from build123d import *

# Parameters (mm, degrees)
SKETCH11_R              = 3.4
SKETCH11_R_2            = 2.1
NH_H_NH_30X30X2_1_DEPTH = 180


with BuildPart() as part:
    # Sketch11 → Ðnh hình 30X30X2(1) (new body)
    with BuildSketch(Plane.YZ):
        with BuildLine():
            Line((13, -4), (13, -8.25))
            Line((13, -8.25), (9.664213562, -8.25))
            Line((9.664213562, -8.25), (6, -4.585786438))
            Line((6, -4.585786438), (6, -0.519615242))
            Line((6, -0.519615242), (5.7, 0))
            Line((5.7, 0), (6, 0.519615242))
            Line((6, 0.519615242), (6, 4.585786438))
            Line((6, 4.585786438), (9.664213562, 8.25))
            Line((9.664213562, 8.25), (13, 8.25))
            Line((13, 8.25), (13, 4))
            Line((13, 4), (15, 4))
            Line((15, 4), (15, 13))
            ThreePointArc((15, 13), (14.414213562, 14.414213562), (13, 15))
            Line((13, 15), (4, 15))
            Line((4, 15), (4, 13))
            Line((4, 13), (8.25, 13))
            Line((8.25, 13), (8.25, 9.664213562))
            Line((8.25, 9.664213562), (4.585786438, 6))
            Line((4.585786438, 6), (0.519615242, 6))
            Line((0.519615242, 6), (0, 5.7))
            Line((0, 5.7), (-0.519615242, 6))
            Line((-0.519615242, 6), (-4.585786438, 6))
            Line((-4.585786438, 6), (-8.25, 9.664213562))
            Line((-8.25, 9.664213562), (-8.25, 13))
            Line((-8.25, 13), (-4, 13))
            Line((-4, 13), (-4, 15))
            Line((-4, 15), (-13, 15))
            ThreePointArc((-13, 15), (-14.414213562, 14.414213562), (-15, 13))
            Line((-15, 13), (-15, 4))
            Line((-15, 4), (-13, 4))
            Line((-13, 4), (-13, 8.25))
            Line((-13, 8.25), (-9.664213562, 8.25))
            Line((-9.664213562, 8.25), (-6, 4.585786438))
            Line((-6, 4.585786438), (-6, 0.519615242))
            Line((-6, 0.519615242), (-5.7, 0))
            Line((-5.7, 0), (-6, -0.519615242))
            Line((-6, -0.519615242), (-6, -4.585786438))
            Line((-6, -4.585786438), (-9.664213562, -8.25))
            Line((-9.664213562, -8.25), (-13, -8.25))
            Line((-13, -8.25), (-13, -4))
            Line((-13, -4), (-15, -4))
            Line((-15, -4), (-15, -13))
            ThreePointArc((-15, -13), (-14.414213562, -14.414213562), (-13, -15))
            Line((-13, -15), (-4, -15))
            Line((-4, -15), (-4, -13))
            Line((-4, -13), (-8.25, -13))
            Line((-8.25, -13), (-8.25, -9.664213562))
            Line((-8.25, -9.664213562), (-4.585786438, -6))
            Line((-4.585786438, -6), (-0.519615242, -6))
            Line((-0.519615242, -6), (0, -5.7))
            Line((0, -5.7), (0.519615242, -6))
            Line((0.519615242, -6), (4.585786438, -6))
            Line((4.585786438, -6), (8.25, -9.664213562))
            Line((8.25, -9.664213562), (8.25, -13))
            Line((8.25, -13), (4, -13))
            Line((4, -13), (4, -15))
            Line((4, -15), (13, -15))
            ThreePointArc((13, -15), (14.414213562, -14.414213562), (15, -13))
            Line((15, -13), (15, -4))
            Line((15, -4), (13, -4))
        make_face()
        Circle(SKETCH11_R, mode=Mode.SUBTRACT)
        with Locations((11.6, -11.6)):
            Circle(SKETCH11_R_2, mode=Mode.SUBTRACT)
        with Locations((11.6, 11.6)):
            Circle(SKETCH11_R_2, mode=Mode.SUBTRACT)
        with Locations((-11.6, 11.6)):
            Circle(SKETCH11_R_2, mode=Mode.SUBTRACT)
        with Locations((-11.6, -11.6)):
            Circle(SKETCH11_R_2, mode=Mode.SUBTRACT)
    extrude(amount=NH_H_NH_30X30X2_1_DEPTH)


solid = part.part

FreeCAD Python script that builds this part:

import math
import FreeCAD as App
import Part
import Sketcher
Q = App.Units.Quantity

doc = App.newDocument("Part")
body = doc.addObject("PartDesign::Body", "Body")

# Sketch on YZ plane
sketch1 = body.newObject("Sketcher::SketchObject", "Sketch")
sketch1.AttachmentSupport = (doc.getObject("YZ_Plane"), [""])
sketch1.MapMode = "FlatFace"
sketch1.addGeometry(Part.LineSegment(App.Vector(13, -4, 0), App.Vector(13, -8.2, 0)), False)
sketch1.addGeometry(Part.LineSegment(App.Vector(13, -8.2, 0), App.Vector(9.7, -8.2, 0)), False)
sketch1.addGeometry(Part.LineSegment(App.Vector(9.7, -8.2, 0), App.Vector(6, -4.6, 0)), False)
sketch1.addGeometry(Part.LineSegment(App.Vector(6, -4.6, 0), App.Vector(6, -0.5, 0)), False)
sketch1.addGeometry(Part.LineSegment(App.Vector(6, -0.5, 0), App.Vector(5.7, 0, 0)), False)
sketch1.addGeometry(Part.LineSegment(App.Vector(5.7, 0, 0), App.Vector(6, 0.5, 0)), False)
sketch1.addGeometry(Part.LineSegment(App.Vector(6, 0.5, 0), App.Vector(6, 4.6, 0)), False)
sketch1.addGeometry(Part.LineSegment(App.Vector(6, 4.6, 0), App.Vector(9.7, 8.2, 0)), False)
sketch1.addGeometry(Part.LineSegment(App.Vector(9.7, 8.2, 0), App.Vector(13, 8.2, 0)), False)
sketch1.addGeometry(Part.LineSegment(App.Vector(13, 8.2, 0), App.Vector(13, 4, 0)), False)
sketch1.addGeometry(Part.LineSegment(App.Vector(13, 4, 0), App.Vector(15, 4, 0)), False)
sketch1.addGeometry(Part.LineSegment(App.Vector(15, 4, 0), App.Vector(15, 13, 0)), False)
sketch1.addGeometry(Part.ArcOfCircle(Part.Circle(App.Vector(13, 13, 0), App.Vector(0, 0, 1), 2), math.radians(0), math.radians(90)), False)
sketch1.addGeometry(Part.LineSegment(App.Vector(13, 15, 0), App.Vector(4, 15, 0)), False)
sketch1.addGeometry(Part.LineSegment(App.Vector(4, 15, 0), App.Vector(4, 13, 0)), False)
sketch1.addGeometry(Part.LineSegment(App.Vector(4, 13, 0), App.Vector(8.2, 13, 0)), False)
sketch1.addGeometry(Part.LineSegment(App.Vector(8.2, 13, 0), App.Vector(8.2, 9.7, 0)), False)
sketch1.addGeometry(Part.LineSegment(App.Vector(8.2, 9.7, 0), App.Vector(4.6, 6, 0)), False)
sketch1.addGeometry(Part.LineSegment(App.Vector(4.6, 6, 0), App.Vector(0.5, 6, 0)), False)
sketch1.addGeometry(Part.LineSegment(App.Vector(0.5, 6, 0), App.Vector(0, 5.7, 0)), False)
sketch1.addGeometry(Part.LineSegment(App.Vector(0, 5.7, 0), App.Vector(-0.5, 6, 0)), False)
sketch1.addGeometry(Part.LineSegment(App.Vector(-0.5, 6, 0), App.Vector(-4.6, 6, 0)), False)
sketch1.addGeometry(Part.LineSegment(App.Vector(-4.6, 6, 0), App.Vector(-8.2, 9.7, 0)), False)
sketch1.addGeometry(Part.LineSegment(App.Vector(-8.2, 9.7, 0), App.Vector(-8.2, 13, 0)), False)
sketch1.addGeometry(Part.LineSegment(App.Vector(-8.2, 13, 0), App.Vector(-4, 13, 0)), False)
sketch1.addGeometry(Part.LineSegment(App.Vector(-4, 13, 0), App.Vector(-4, 15, 0)), False)
sketch1.addGeometry(Part.LineSegment(App.Vector(-4, 15, 0), App.Vector(-13, 15, 0)), False)
sketch1.addGeometry(Part.ArcOfCircle(Part.Circle(App.Vector(-13, 13, 0), App.Vector(0, 0, 1), 2), math.radians(90), math.radians(180)), False)
sketch1.addGeometry(Part.LineSegment(App.Vector(-15, 13, 0), App.Vector(-15, 4, 0)), False)
sketch1.addGeometry(Part.LineSegment(App.Vector(-15, 4, 0), App.Vector(-13, 4, 0)), False)
sketch1.addGeometry(Part.LineSegment(App.Vector(-13, 4, 0), App.Vector(-13, 8.2, 0)), False)
sketch1.addGeometry(Part.LineSegment(App.Vector(-13, 8.2, 0), App.Vector(-9.7, 8.2, 0)), False)
sketch1.addGeometry(Part.LineSegment(App.Vector(-9.7, 8.2, 0), App.Vector(-6, 4.6, 0)), False)
sketch1.addGeometry(Part.LineSegment(App.Vector(-6, 4.6, 0), App.Vector(-6, 0.5, 0)), False)
sketch1.addGeometry(Part.LineSegment(App.Vector(-6, 0.5, 0), App.Vector(-5.7, 0, 0)), False)
sketch1.addGeometry(Part.LineSegment(App.Vector(-5.7, 0, 0), App.Vector(-6, -0.5, 0)), False)
sketch1.addGeometry(Part.LineSegment(App.Vector(-6, -0.5, 0), App.Vector(-6, -4.6, 0)), False)
sketch1.addGeometry(Part.LineSegment(App.Vector(-6, -4.6, 0), App.Vector(-9.7, -8.2, 0)), False)
sketch1.addGeometry(Part.LineSegment(App.Vector(-9.7, -8.2, 0), App.Vector(-13, -8.2, 0)), False)
sketch1.addGeometry(Part.LineSegment(App.Vector(-13, -8.2, 0), App.Vector(-13, -4, 0)), False)
sketch1.addGeometry(Part.LineSegment(App.Vector(-13, -4, 0), App.Vector(-15, -4, 0)), False)
sketch1.addGeometry(Part.LineSegment(App.Vector(-15, -4, 0), App.Vector(-15, -13, 0)), False)
sketch1.addGeometry(Part.ArcOfCircle(Part.Circle(App.Vector(-13, -13, 0), App.Vector(0, 0, 1), 2), math.radians(-180), math.radians(-90)), False)
sketch1.addGeometry(Part.LineSegment(App.Vector(-13, -15, 0), App.Vector(-4, -15, 0)), False)
sketch1.addGeometry(Part.LineSegment(App.Vector(-4, -15, 0), App.Vector(-4, -13, 0)), False)
sketch1.addGeometry(Part.LineSegment(App.Vector(-4, -13, 0), App.Vector(-8.2, -13, 0)), False)
sketch1.addGeometry(Part.LineSegment(App.Vector(-8.2, -13, 0), App.Vector(-8.2, -9.7, 0)), False)
sketch1.addGeometry(Part.LineSegment(App.Vector(-8.2, -9.7, 0), App.Vector(-4.6, -6, 0)), False)
sketch1.addGeometry(Part.LineSegment(App.Vector(-4.6, -6, 0), App.Vector(-0.5, -6, 0)), False)
sketch1.addGeometry(Part.LineSegment(App.Vector(-0.5, -6, 0), App.Vector(0, -5.7, 0)), False)
sketch1.addGeometry(Part.LineSegment(App.Vector(0, -5.7, 0), App.Vector(0.5, -6, 0)), False)
sketch1.addGeometry(Part.LineSegment(App.Vector(0.5, -6, 0), App.Vector(4.6, -6, 0)), False)
sketch1.addGeometry(Part.LineSegment(App.Vector(4.6, -6, 0), App.Vector(8.2, -9.7, 0)), False)
sketch1.addGeometry(Part.LineSegment(App.Vector(8.2, -9.7, 0), App.Vector(8.2, -13, 0)), False)
sketch1.addGeometry(Part.LineSegment(App.Vector(8.2, -13, 0), App.Vector(4, -13, 0)), False)
sketch1.addGeometry(Part.LineSegment(App.Vector(4, -13, 0), App.Vector(4, -15, 0)), False)
sketch1.addGeometry(Part.LineSegment(App.Vector(4, -15, 0), App.Vector(13, -15, 0)), False)
sketch1.addGeometry(Part.ArcOfCircle(Part.Circle(App.Vector(13, -13, 0), App.Vector(0, 0, 1), 2), math.radians(-90), math.radians(0)), False)
sketch1.addGeometry(Part.LineSegment(App.Vector(15, -13, 0), App.Vector(15, -4, 0)), False)
sketch1.addGeometry(Part.LineSegment(App.Vector(15, -4, 0), App.Vector(13, -4, 0)), False)
sketch1.addGeometry(Part.Circle(App.Vector(-11.6, -11.6, 0), App.Vector(0, 0, 1), 2.1), False)
sketch1.addGeometry(Part.Circle(App.Vector(11.6, -11.6, 0), App.Vector(0, 0, 1), 2.1), False)
sketch1.addGeometry(Part.Circle(App.Vector(-11.6, 11.6, 0), App.Vector(0, 0, 1), 2.1), False)
sketch1.addGeometry(Part.Circle(App.Vector(0, 0, 0), App.Vector(0, 0, 1), 3.4), False)
sketch1.addGeometry(Part.Circle(App.Vector(11.6, 11.6, 0), App.Vector(0, 0, 1), 2.1), False)
sketch1.addConstraint(Sketcher.Constraint("Coincident", 0, 2, 1, 1))
sketch1.addConstraint(Sketcher.Constraint("Coincident", 1, 2, 2, 1))
sketch1.addConstraint(Sketcher.Constraint("Coincident", 2, 2, 3, 1))
sketch1.addConstraint(Sketcher.Constraint("Coincident", 3, 2, 4, 1))
sketch1.addConstraint(Sketcher.Constraint("Coincident", 4, 2, 5, 1))
sketch1.addConstraint(Sketcher.Constraint("Coincident", 5, 2, 6, 1))
sketch1.addConstraint(Sketcher.Constraint("Coincident", 6, 2, 7, 1))
sketch1.addConstraint(Sketcher.Constraint("Coincident", 7, 2, 8, 1))
sketch1.addConstraint(Sketcher.Constraint("Coincident", 8, 2, 9, 1))
sketch1.addConstraint(Sketcher.Constraint("Coincident", 9, 2, 10, 1))
sketch1.addConstraint(Sketcher.Constraint("Coincident", 10, 2, 11, 1))
sketch1.addConstraint(Sketcher.Constraint("Tangent", 11, 2, 12, 1))
sketch1.addConstraint(Sketcher.Constraint("Tangent", 12, 2, 13, 1))
sketch1.addConstraint(Sketcher.Constraint("Coincident", 13, 2, 14, 1))
sketch1.addConstraint(Sketcher.Constraint("Coincident", 14, 2, 15, 1))
sketch1.addConstraint(Sketcher.Constraint("Coincident", 15, 2, 16, 1))
sketch1.addConstraint(Sketcher.Constraint("Coincident", 16, 2, 17, 1))
sketch1.addConstraint(Sketcher.Constraint("Coincident", 17, 2, 18, 1))
sketch1.addConstraint(Sketcher.Constraint("Coincident", 18, 2, 19, 1))
sketch1.addConstraint(Sketcher.Constraint("Coincident", 19, 2, 20, 1))
sketch1.addConstraint(Sketcher.Constraint("Coincident", 20, 2, 21, 1))
sketch1.addConstraint(Sketcher.Constraint("Coincident", 21, 2, 22, 1))
sketch1.addConstraint(Sketcher.Constraint("Coincident", 22, 2, 23, 1))
sketch1.addConstraint(Sketcher.Constraint("Coincident", 23, 2, 24, 1))
sketch1.addConstraint(Sketcher.Constraint("Coincident", 24, 2, 25, 1))
sketch1.addConstraint(Sketcher.Constraint("Coincident", 25, 2, 26, 1))
sketch1.addConstraint(Sketcher.Constraint("Tangent", 26, 2, 27, 1))
sketch1.addConstraint(Sketcher.Constraint("Tangent", 27, 2, 28, 1))
sketch1.addConstraint(Sketcher.Constraint("Coincident", 28, 2, 29, 1))
sketch1.addConstraint(Sketcher.Constraint("Coincident", 29, 2, 30, 1))
sketch1.addConstraint(Sketcher.Constraint("Coincident", 30, 2, 31, 1))
sketch1.addConstraint(Sketcher.Constraint("Coincident", 31, 2, 32, 1))
sketch1.addConstraint(Sketcher.Constraint("Coincident", 32, 2, 33, 1))
sketch1.addConstraint(Sketcher.Constraint("Coincident", 33, 2, 34, 1))
sketch1.addConstraint(Sketcher.Constraint("Coincident", 34, 2, 35, 1))
sketch1.addConstraint(Sketcher.Constraint("Coincident", 35, 2, 36, 1))
sketch1.addConstraint(Sketcher.Constraint("Coincident", 36, 2, 37, 1))
sketch1.addConstraint(Sketcher.Constraint("Coincident", 37, 2, 38, 1))
sketch1.addConstraint(Sketcher.Constraint("Coincident", 38, 2, 39, 1))
sketch1.addConstraint(Sketcher.Constraint("Coincident", 39, 2, 40, 1))
sketch1.addConstraint(Sketcher.Constraint("Coincident", 40, 2, 41, 1))
sketch1.addConstraint(Sketcher.Constraint("Tangent", 41, 2, 42, 1))
sketch1.addConstraint(Sketcher.Constraint("Tangent", 42, 2, 43, 1))
sketch1.addConstraint(Sketcher.Constraint("Coincident", 43, 2, 44, 1))
sketch1.addConstraint(Sketcher.Constraint("Coincident", 44, 2, 45, 1))
sketch1.addConstraint(Sketcher.Constraint("Coincident", 45, 2, 46, 1))
sketch1.addConstraint(Sketcher.Constraint("Coincident", 46, 2, 47, 1))
sketch1.addConstraint(Sketcher.Constraint("Coincident", 47, 2, 48, 1))
sketch1.addConstraint(Sketcher.Constraint("Coincident", 48, 2, 49, 1))
sketch1.addConstraint(Sketcher.Constraint("Coincident", 49, 2, 50, 1))
sketch1.addConstraint(Sketcher.Constraint("Coincident", 50, 2, 51, 1))
sketch1.addConstraint(Sketcher.Constraint("Coincident", 51, 2, 52, 1))
sketch1.addConstraint(Sketcher.Constraint("Coincident", 52, 2, 53, 1))
sketch1.addConstraint(Sketcher.Constraint("Coincident", 53, 2, 54, 1))
sketch1.addConstraint(Sketcher.Constraint("Coincident", 54, 2, 55, 1))
sketch1.addConstraint(Sketcher.Constraint("Coincident", 55, 2, 56, 1))
sketch1.addConstraint(Sketcher.Constraint("Tangent", 56, 2, 57, 1))
sketch1.addConstraint(Sketcher.Constraint("Tangent", 57, 2, 58, 1))
sketch1.addConstraint(Sketcher.Constraint("Coincident", 58, 2, 59, 1))
sketch1.addConstraint(Sketcher.Constraint("Coincident", 59, 2, 0, 1))
sketch1.addConstraint(Sketcher.Constraint("Vertical", 0))
sketch1.addConstraint(Sketcher.Constraint("Horizontal", 1))
sketch1.addConstraint(Sketcher.Constraint("Vertical", 3))
sketch1.addConstraint(Sketcher.Constraint("Vertical", 6))
sketch1.addConstraint(Sketcher.Constraint("Horizontal", 8))
sketch1.addConstraint(Sketcher.Constraint("Vertical", 9))
sketch1.addConstraint(Sketcher.Constraint("Horizontal", 10))
sketch1.addConstraint(Sketcher.Constraint("Vertical", 11))
sketch1.addConstraint(Sketcher.Constraint("Horizontal", 13))
sketch1.addConstraint(Sketcher.Constraint("Vertical", 14))
sketch1.addConstraint(Sketcher.Constraint("Horizontal", 15))
sketch1.addConstraint(Sketcher.Constraint("Vertical", 16))
sketch1.addConstraint(Sketcher.Constraint("Horizontal", 18))
sketch1.addConstraint(Sketcher.Constraint("Horizontal", 21))
sketch1.addConstraint(Sketcher.Constraint("Vertical", 23))
sketch1.addConstraint(Sketcher.Constraint("Horizontal", 24))
sketch1.addConstraint(Sketcher.Constraint("Vertical", 25))
sketch1.addConstraint(Sketcher.Constraint("Horizontal", 26))
sketch1.addConstraint(Sketcher.Constraint("Vertical", 28))
sketch1.addConstraint(Sketcher.Constraint("Horizontal", 29))
sketch1.addConstraint(Sketcher.Constraint("Vertical", 30))
sketch1.addConstraint(Sketcher.Constraint("Horizontal", 31))
sketch1.addConstraint(Sketcher.Constraint("Vertical", 33))
sketch1.addConstraint(Sketcher.Constraint("Vertical", 36))
sketch1.addConstraint(Sketcher.Constraint("Horizontal", 38))
sketch1.addConstraint(Sketcher.Constraint("Vertical", 39))
sketch1.addConstraint(Sketcher.Constraint("Horizontal", 40))
sketch1.addConstraint(Sketcher.Constraint("Vertical", 41))
sketch1.addConstraint(Sketcher.Constraint("Horizontal", 43))
sketch1.addConstraint(Sketcher.Constraint("Vertical", 44))
sketch1.addConstraint(Sketcher.Constraint("Horizontal", 45))
sketch1.addConstraint(Sketcher.Constraint("Vertical", 46))
sketch1.addConstraint(Sketcher.Constraint("Horizontal", 48))
sketch1.addConstraint(Sketcher.Constraint("Horizontal", 51))
sketch1.addConstraint(Sketcher.Constraint("Vertical", 53))
sketch1.addConstraint(Sketcher.Constraint("Horizontal", 54))
sketch1.addConstraint(Sketcher.Constraint("Vertical", 55))
sketch1.addConstraint(Sketcher.Constraint("Horizontal", 56))
sketch1.addConstraint(Sketcher.Constraint("Vertical", 58))
sketch1.addConstraint(Sketcher.Constraint("Horizontal", 59))
sketch1.addConstraint(Sketcher.Constraint("Coincident", 63, 3, -1, 1))
sketch1.addConstraint(Sketcher.Constraint("Equal", 12, 27))
sketch1.addConstraint(Sketcher.Constraint("Equal", 27, 42))
sketch1.addConstraint(Sketcher.Constraint("Equal", 42, 57))
sketch1.addConstraint(Sketcher.Constraint("Equal", 60, 61))
sketch1.addConstraint(Sketcher.Constraint("Equal", 61, 62))
sketch1.addConstraint(Sketcher.Constraint("Equal", 62, 64))
sketch1.addConstraint(Sketcher.Constraint("Symmetric", 12, 3, 42, 3, -1, 1))
sketch1.addConstraint(Sketcher.Constraint("Symmetric", 27, 3, 57, 3, -1, 1))
sketch1.addConstraint(Sketcher.Constraint("Symmetric", 61, 3, 62, 3, -1, 1))
sketch1.addConstraint(Sketcher.Constraint("Symmetric", 60, 3, 64, 3, -1, 1))
sketch1.addConstraint(Sketcher.Constraint("Symmetric", 0, 2, 30, 2, -1, 1))
sketch1.addConstraint(Sketcher.Constraint("Symmetric", 2, 2, 32, 2, -1, 1))
sketch1.addConstraint(Sketcher.Constraint("Symmetric", 4, 2, 34, 2, -1, 1))
sketch1.addConstraint(Sketcher.Constraint("Symmetric", 5, 2, 35, 2, -1, 1))
sketch1.addConstraint(Sketcher.Constraint("Symmetric", 7, 2, 37, 2, -1, 1))
sketch1.addConstraint(Sketcher.Constraint("Symmetric", 9, 2, 39, 2, -1, 1))
sketch1.addConstraint(Sketcher.Constraint("Symmetric", 14, 2, 44, 2, -1, 1))
sketch1.addConstraint(Sketcher.Constraint("Symmetric", 16, 2, 46, 2, -1, 1))
sketch1.addConstraint(Sketcher.Constraint("Symmetric", 17, 2, 47, 2, -1, 1))
sketch1.addConstraint(Sketcher.Constraint("Symmetric", 19, 2, 49, 2, -1, 1))
sketch1.addConstraint(Sketcher.Constraint("Symmetric", 20, 2, 50, 2, -1, 1))
sketch1.addConstraint(Sketcher.Constraint("Symmetric", 22, 2, 52, 2, -1, 1))
sketch1.addConstraint(Sketcher.Constraint("Symmetric", 24, 2, 54, 2, -1, 1))
sketch1.addConstraint(Sketcher.Constraint("Symmetric", 12, 3, 27, 3, -2))
sketch1.addConstraint(Sketcher.Constraint("Symmetric", 60, 3, 61, 3, -2))
sketch1.addConstraint(Sketcher.Constraint("Symmetric", 18, 2, 20, 2, -2))
sketch1.addConstraint(Sketcher.Constraint("Symmetric", 16, 2, 22, 2, -2))
sketch1.addConstraint(Sketcher.Constraint("Symmetric", 14, 2, 24, 2, -2))
sketch1.addConstraint(Sketcher.Constraint("Symmetric", 9, 2, 29, 2, -2))
sketch1.addConstraint(Sketcher.Constraint("Symmetric", 7, 2, 31, 2, -2))
sketch1.addConstraint(Sketcher.Constraint("Symmetric", 6, 2, 32, 2, -2))
sketch1.addConstraint(Sketcher.Constraint("PointOnObject", 4, 2, -1))
sketch1.addConstraint(Sketcher.Constraint("PointOnObject", 19, 2, -2))
sketch1.addConstraint(Sketcher.Constraint("Perpendicular", 2, 7))
sketch1.addConstraint(Sketcher.Constraint("Parallel", 7, 17))
sketch1.addConstraint(Sketcher.Constraint("Perpendicular", 4, 19))
sketch1.addConstraint(Sketcher.Constraint("Perpendicular", 5, 20))
sketch1.addConstraint(Sketcher.Constraint("Perpendicular", 17, 22))
sketch1.addConstraint(Sketcher.Constraint("Parallel", 22, 32))
sketch1.addConstraint(Sketcher.Constraint("Perpendicular", 19, 34))
sketch1.addConstraint(Sketcher.Constraint("Perpendicular", 32, 37))
sketch1.addConstraint(Sketcher.Constraint("Perpendicular", 34, 49))
sketch1.addConstraint(Sketcher.Constraint("Perpendicular", 47, 52))
sketch1.addConstraint(Sketcher.Constraint("Horizontal", 11, 2, 14, 2))
sketch1.addConstraint(Sketcher.Constraint("Horizontal", 40, 2, 58, 2))
sketch1.addConstraint(Sketcher.Constraint("Vertical", 57, 3, 0, 2))
sketch1.addConstraint(Sketcher.Constraint("Equal", 54, 0))
sketch1.addConstraint(Sketcher.Constraint("Equal", 51, 3))
sketch1.addConstraint(Sketcher.Constraint("Equal", 56, 11))
sketch1.addConstraint(Sketcher.Constraint("Equal", 38, 16))
sketch1.addConstraint(Sketcher.Constraint("Equal", 7, 17))
sketch1.addConstraint(Sketcher.Constraint("Equal", 5, 19))
sketch1.addConstraint(Sketcher.Constraint("Radius", 12, Q("2 mm")))
sketch1.addConstraint(Sketcher.Constraint("Diameter", 60, Q("4.2 mm")))
sketch1.addConstraint(Sketcher.Constraint("Diameter", 63, Q("6.8 mm")))
sketch1.addConstraint(Sketcher.Constraint("DistanceX", 13, 2, 13, 1, Q("9 mm")))
sketch1.addConstraint(Sketcher.Constraint("Angle", 4, Q("120 deg")))
sketch1.addConstraint(Sketcher.Constraint("DistanceX", -1, 1, 12, 3, Q("13 mm")))
sketch1.addConstraint(Sketcher.Constraint("DistanceX", -1, 1, 2, 2, Q("6 mm")))
sketch1.addConstraint(Sketcher.Constraint("Distance", 4, Q("0.6 mm")))
sketch1.addConstraint(Sketcher.Constraint("DistanceX", 15, 1, 15, 2, Q("4.25 mm")))
sketch1.addConstraint(Sketcher.Constraint("DistanceX", 60, 3, -1, 1, Q("11.6 mm")))
sketch1.addConstraint(Sketcher.Constraint("DistanceY", 60, 3, -1, 1, Q("11.6 mm")))
sketch1.addConstraint(Sketcher.Constraint("DistanceX", 18, 2, 18, 1, Q("4.066171 mm")))
pad1 = body.newObject("PartDesign::Pad", "Pad")
pad1.Profile = sketch1
pad1.Length = 180

doc.recompute()
